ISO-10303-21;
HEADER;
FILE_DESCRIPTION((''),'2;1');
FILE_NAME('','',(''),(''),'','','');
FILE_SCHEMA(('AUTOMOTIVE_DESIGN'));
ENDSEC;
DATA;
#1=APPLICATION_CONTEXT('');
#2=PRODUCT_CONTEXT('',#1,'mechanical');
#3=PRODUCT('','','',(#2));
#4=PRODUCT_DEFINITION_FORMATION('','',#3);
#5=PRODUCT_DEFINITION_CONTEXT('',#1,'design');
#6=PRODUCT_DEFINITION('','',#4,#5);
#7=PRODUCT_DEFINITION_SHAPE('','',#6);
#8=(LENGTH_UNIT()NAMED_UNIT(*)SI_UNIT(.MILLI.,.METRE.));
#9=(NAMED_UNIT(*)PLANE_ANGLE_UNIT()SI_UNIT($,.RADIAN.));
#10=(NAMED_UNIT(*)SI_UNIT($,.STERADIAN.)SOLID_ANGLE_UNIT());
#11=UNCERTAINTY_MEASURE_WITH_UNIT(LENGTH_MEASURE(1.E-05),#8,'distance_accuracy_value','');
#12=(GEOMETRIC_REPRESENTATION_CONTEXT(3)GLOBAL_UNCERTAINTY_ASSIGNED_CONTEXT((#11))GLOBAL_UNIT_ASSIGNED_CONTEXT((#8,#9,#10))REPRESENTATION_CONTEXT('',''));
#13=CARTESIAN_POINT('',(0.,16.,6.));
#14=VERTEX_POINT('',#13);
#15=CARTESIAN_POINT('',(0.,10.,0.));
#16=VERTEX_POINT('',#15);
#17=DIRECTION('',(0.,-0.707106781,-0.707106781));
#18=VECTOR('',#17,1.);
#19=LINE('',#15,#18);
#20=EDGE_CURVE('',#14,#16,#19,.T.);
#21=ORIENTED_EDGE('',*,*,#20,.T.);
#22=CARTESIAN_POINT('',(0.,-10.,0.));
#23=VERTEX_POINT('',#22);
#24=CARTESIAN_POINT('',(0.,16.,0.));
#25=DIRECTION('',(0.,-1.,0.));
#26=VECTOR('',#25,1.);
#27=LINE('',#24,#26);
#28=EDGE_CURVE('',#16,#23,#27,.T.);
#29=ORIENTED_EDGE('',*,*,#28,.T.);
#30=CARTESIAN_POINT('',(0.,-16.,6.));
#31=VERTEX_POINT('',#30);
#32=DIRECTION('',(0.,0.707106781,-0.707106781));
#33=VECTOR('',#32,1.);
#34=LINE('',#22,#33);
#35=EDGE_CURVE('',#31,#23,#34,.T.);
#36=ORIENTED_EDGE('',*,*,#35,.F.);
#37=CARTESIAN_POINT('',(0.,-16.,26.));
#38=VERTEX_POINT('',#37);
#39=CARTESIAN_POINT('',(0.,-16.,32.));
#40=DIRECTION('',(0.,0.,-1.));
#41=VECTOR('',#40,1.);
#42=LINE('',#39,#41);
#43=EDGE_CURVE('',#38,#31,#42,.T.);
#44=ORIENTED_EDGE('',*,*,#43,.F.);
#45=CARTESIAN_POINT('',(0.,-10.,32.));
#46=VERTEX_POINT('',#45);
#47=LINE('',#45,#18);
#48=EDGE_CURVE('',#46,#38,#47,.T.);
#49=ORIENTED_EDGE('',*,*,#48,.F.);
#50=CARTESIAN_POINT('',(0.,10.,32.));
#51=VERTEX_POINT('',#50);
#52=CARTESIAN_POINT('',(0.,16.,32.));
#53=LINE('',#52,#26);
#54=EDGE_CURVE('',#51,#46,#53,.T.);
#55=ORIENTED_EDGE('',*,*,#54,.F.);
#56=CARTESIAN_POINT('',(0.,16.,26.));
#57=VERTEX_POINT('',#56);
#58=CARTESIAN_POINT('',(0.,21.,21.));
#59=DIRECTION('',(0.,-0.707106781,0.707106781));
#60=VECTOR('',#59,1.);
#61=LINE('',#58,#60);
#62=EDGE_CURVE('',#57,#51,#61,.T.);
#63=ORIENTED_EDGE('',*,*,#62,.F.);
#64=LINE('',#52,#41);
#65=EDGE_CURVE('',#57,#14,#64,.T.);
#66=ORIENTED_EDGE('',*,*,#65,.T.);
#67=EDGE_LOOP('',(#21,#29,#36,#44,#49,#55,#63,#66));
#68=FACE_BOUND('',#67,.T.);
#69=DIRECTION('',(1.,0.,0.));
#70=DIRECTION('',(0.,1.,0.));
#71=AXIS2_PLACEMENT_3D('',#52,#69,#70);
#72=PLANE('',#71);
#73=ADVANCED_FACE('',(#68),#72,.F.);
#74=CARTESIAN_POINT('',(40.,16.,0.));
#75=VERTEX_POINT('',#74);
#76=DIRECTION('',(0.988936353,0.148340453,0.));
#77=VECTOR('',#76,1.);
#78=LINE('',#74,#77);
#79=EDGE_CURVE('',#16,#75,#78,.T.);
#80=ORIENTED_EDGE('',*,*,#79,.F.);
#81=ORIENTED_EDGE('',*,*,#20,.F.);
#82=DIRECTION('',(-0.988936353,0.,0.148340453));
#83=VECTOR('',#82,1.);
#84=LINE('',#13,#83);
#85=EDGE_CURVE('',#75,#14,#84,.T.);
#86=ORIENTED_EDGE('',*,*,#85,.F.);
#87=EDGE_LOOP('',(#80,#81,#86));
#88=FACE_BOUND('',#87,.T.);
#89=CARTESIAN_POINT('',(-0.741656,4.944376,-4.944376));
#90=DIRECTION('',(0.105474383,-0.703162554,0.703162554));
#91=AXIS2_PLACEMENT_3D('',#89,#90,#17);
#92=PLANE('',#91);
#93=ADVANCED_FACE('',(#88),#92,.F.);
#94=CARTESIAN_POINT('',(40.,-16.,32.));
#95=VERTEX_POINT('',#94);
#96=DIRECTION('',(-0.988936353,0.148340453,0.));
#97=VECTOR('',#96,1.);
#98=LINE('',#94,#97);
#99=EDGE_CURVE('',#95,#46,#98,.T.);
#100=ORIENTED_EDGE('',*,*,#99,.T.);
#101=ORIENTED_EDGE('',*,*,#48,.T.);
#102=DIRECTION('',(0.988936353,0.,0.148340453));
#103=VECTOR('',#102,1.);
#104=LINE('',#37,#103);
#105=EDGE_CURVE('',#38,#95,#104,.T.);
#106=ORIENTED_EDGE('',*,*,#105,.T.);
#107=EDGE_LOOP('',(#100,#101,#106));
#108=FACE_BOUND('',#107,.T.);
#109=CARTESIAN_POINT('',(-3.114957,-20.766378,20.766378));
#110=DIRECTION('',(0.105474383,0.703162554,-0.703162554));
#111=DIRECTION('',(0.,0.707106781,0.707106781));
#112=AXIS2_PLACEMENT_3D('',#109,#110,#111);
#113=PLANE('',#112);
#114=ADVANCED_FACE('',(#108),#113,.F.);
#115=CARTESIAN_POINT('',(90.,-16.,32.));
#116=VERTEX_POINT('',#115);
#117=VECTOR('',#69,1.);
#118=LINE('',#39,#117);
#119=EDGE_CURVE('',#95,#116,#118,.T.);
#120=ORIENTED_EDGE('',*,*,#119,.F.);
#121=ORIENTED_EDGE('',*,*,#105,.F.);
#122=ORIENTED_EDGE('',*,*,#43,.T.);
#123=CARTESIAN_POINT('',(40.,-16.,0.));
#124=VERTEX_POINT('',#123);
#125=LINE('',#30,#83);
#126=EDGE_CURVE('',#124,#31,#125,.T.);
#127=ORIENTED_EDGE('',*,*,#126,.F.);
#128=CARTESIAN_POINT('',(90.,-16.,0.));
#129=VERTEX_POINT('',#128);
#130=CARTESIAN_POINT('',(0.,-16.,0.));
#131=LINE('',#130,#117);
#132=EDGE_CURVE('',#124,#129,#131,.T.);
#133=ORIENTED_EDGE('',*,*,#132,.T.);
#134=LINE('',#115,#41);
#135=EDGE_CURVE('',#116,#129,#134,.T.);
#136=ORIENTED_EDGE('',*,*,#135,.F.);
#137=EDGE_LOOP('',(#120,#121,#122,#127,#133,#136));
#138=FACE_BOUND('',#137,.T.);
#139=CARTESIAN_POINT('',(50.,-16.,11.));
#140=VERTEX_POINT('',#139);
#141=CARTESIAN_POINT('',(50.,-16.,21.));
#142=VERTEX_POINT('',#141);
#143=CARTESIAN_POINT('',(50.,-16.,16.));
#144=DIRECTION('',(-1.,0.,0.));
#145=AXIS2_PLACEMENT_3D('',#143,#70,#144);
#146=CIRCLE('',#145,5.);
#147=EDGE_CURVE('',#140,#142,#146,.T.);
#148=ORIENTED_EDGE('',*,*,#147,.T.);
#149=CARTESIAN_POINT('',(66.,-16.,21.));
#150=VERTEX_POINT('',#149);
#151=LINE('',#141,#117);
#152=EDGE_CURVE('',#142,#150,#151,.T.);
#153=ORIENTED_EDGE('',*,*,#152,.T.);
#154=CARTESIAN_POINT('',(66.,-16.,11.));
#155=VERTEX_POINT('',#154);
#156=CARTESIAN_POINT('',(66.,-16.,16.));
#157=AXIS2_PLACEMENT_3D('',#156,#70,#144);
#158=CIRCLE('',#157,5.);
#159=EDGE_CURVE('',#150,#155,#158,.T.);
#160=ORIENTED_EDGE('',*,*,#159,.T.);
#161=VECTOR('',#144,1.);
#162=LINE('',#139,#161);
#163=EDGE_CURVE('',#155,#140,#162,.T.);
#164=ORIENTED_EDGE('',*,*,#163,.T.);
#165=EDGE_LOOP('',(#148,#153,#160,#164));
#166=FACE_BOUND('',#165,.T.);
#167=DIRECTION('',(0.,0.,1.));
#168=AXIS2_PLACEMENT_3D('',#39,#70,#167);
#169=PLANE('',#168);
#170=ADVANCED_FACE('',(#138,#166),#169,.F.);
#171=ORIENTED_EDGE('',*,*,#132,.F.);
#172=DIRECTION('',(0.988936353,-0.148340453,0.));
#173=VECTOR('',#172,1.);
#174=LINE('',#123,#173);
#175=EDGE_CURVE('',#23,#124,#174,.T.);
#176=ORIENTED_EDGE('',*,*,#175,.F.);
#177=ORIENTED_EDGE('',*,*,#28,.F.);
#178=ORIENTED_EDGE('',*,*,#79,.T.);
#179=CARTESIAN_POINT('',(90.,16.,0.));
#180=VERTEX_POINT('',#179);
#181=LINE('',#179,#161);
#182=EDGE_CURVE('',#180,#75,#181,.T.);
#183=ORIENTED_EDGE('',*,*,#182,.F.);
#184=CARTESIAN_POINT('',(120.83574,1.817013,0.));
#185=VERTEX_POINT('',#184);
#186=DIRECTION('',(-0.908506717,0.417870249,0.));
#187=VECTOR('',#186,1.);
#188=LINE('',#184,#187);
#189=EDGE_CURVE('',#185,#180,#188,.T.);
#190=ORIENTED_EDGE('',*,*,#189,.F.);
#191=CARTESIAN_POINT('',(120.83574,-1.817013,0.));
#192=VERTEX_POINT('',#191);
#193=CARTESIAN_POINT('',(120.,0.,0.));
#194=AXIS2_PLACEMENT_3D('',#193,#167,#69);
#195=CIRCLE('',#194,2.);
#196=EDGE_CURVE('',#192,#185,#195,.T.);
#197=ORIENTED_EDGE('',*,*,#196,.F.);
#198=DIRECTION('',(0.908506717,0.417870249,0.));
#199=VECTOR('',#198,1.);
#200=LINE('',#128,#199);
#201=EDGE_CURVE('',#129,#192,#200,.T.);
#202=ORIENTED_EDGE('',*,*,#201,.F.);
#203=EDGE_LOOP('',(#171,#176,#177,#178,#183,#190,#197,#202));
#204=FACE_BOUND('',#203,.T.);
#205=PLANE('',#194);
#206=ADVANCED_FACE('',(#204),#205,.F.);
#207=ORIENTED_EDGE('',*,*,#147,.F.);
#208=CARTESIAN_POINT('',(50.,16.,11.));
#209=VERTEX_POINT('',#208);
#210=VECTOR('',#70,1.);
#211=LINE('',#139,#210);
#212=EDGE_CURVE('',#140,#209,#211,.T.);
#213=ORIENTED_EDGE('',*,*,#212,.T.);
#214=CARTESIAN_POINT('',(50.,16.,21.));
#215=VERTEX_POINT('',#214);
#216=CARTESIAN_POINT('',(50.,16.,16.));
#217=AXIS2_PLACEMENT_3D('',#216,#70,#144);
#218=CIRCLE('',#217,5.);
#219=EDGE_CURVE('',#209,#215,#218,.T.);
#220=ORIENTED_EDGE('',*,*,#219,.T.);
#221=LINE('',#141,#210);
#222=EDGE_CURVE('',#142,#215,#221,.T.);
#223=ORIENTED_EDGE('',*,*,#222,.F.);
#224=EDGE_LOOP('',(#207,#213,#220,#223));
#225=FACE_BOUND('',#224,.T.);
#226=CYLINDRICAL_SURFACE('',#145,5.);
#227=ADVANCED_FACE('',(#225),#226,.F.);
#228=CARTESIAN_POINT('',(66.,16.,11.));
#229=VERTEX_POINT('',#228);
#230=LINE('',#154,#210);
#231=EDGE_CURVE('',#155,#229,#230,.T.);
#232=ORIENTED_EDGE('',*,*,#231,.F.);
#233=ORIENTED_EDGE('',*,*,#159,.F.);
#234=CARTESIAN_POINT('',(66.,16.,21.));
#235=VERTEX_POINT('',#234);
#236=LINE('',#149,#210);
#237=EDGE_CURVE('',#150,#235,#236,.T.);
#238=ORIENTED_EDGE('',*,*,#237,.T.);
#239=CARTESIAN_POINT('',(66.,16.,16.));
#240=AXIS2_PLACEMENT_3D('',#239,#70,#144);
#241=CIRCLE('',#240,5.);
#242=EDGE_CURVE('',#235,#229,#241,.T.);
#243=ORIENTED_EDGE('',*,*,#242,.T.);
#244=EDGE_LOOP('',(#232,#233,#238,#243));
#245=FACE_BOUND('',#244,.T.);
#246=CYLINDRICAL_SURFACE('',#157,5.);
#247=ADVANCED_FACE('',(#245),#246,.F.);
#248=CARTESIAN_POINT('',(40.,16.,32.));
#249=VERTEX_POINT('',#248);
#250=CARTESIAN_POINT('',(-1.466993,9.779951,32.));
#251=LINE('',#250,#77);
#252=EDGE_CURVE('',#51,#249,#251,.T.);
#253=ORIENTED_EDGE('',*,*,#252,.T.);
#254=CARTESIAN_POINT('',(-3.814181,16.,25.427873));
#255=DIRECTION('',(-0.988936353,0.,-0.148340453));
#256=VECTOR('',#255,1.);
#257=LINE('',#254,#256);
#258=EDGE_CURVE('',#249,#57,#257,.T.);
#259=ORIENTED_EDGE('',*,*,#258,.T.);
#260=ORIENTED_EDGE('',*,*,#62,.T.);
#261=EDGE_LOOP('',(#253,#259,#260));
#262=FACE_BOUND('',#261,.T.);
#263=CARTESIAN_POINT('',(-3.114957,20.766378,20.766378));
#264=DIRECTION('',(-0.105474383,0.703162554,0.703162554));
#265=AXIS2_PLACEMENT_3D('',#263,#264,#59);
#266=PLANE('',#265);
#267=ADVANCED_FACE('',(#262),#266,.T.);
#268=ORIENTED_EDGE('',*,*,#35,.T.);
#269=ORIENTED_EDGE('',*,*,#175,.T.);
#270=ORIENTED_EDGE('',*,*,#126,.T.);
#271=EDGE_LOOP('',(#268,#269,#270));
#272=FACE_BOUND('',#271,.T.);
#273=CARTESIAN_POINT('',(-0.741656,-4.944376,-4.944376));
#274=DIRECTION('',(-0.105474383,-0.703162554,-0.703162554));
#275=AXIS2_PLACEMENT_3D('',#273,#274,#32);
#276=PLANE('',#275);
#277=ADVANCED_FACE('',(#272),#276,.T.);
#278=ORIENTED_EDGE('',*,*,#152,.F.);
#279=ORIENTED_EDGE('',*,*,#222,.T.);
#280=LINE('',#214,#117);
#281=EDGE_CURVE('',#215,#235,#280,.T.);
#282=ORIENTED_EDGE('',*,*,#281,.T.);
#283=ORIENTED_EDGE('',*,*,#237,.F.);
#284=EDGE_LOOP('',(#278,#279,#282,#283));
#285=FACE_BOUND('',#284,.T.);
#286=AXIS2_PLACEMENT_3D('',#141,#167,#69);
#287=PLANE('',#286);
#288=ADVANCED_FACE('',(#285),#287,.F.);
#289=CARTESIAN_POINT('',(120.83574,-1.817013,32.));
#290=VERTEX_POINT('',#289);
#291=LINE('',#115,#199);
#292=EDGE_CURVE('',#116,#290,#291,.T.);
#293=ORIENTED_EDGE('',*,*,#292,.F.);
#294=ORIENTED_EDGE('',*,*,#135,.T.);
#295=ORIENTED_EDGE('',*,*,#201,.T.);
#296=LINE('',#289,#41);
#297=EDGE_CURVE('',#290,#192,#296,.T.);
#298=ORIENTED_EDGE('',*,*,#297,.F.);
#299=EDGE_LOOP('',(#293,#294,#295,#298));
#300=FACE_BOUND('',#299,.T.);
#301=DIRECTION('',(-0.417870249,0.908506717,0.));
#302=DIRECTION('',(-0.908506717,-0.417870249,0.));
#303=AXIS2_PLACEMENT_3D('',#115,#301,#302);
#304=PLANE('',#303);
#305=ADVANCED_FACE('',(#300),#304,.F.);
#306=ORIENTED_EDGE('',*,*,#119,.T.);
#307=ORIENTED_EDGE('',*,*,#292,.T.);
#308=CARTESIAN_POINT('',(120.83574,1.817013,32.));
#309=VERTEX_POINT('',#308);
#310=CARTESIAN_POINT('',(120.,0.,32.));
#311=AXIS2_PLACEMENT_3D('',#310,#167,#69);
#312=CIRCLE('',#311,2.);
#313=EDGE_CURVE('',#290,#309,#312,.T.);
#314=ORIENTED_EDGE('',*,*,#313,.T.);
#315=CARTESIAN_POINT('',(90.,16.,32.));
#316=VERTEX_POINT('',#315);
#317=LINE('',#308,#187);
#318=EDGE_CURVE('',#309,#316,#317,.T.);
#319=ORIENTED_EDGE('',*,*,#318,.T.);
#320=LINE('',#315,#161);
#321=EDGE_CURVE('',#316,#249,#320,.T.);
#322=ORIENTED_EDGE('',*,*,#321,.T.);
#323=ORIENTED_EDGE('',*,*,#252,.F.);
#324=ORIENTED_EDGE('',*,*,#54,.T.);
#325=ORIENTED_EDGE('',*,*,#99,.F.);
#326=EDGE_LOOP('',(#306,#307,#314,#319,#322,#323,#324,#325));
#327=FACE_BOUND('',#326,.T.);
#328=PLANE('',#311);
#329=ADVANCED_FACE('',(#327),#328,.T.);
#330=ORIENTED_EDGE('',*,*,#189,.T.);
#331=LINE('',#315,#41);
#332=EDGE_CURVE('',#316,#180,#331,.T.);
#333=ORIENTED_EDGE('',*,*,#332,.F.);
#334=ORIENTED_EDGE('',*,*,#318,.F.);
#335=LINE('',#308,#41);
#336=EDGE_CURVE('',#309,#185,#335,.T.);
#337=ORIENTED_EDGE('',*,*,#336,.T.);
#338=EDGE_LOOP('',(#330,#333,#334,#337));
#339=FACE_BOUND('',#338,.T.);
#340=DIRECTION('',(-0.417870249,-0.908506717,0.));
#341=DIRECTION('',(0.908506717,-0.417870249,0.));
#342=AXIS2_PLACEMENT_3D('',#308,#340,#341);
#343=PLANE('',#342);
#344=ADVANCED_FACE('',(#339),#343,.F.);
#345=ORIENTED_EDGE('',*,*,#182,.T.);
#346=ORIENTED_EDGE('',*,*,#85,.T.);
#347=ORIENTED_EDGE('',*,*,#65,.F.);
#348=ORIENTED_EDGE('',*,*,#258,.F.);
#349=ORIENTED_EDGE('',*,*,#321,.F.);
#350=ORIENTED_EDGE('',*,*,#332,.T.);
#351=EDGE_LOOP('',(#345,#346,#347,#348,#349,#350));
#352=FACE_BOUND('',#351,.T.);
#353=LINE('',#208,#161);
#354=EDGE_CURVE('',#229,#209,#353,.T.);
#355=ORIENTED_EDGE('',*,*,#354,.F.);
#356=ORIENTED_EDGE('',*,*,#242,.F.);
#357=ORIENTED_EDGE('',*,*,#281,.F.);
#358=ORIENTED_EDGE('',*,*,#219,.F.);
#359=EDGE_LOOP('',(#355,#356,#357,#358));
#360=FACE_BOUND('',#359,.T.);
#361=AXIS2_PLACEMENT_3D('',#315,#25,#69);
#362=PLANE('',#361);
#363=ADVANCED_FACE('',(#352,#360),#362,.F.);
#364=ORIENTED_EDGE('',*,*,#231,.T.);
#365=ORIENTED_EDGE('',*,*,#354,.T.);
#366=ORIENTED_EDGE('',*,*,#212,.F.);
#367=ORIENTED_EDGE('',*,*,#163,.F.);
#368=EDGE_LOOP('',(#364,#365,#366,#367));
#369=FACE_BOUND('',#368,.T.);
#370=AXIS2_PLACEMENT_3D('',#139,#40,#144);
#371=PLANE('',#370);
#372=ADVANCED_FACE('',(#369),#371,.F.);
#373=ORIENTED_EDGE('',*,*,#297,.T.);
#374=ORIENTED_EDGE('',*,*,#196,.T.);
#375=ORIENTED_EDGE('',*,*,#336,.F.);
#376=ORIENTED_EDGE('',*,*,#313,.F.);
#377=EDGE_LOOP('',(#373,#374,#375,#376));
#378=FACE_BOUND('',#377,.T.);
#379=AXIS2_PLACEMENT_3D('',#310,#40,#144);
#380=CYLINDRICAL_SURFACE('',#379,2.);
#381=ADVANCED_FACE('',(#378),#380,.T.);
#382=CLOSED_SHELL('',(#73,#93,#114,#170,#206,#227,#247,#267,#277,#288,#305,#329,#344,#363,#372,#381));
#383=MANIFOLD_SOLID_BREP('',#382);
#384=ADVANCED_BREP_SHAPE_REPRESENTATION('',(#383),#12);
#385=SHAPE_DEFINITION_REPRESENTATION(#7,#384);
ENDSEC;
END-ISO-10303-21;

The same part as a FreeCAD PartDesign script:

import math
import FreeCAD as App
import Part
import Sketcher

V = App.Vector

doc = App.newDocument("Part")
body = doc.addObject("PartDesign::Body", "Body")

sketch1 = body.newObject("Sketcher::SketchObject", "Sketch")
sketch1.AttachmentSupport = (doc.getObject("XY_Plane"), [""])
sketch1.MapMode = "FlatFace"
sketch1.addGeometry([
    Part.LineSegment(V(0, 16, 0), V(0, -16, 0)),
    Part.LineSegment(V(0, -16, 0), V(90, -16, 0)),
    Part.LineSegment(V(90, -16, 0), V(120.8, -1.8, 0)),
    Part.ArcOfCircle(Part.Circle(V(120, 0, 0), V(0, 0, 1), 2), math.radians(-65), math.radians(65)),
    Part.LineSegment(V(120.8, 1.8, 0), V(90, 16, 0)),
    Part.LineSegment(V(90, 16, 0), V(0, 16, 0)),
], False)
sketch1.addConstraint([
    Sketcher.Constraint("Coincident", 0, 2, 1, 1),
    Sketcher.Constraint("Coincident", 1, 2, 2, 1),
    Sketcher.Constraint("Tangent", 2, 2, 3, 1),
    Sketcher.Constraint("Tangent", 3, 2, 4, 1),
    Sketcher.Constraint("Coincident", 4, 2, 5, 1),
    Sketcher.Constraint("Coincident", 5, 2, 0, 1),
    Sketcher.Constraint("Vertical", 0),
    Sketcher.Constraint("Horizontal", 1),
    Sketcher.Constraint("Horizontal", 5),
    Sketcher.Constraint("Symmetric", 0, 2, 5, 2, -1, 1),
    Sketcher.Constraint("Symmetric", 2, 2, 3, 2, -1),
    Sketcher.Constraint("Radius", 3, 2.0),
    Sketcher.Constraint("DistanceX", 1, 1, 1, 2, 90.0),
    Sketcher.Constraint("DistanceY", 0, 2, 0, 1, 32.0),
    Sketcher.Constraint("DistanceX", -1, 1, 3, 3, 120.0),
])
pad1 = body.newObject("PartDesign::Pad", "Pad")
pad1.Profile = sketch1
pad1.Length = 32

sketch2 = body.newObject("Sketcher::SketchObject", "Sketch001")
sketch2.AttachmentSupport = (doc.getObject("XZ_Plane"), [""])
sketch2.MapMode = "FlatFace"
sketch2.AttachmentOffset = App.Placement(V(0, 0, -16), App.Rotation())
sketch2.addGeometry([
    Part.LineSegment(V(66, 11, 0), V(50, 11, 0)),
    Part.ArcOfCircle(Part.Circle(V(50, 16, 0), V(0, 0, 1), 5), math.radians(90), math.radians(270)),
    Part.LineSegment(V(50, 21, 0), V(66, 21, 0)),
    Part.ArcOfCircle(Part.Circle(V(66, 16, 0), V(0, 0, 1), 5), math.radians(-90), math.radians(90)),
], False)
sketch2.addConstraint([
    Sketcher.Constraint("Tangent", 0, 2, 1, 2),
    Sketcher.Constraint("Tangent", 1, 1, 2, 1),
    Sketcher.Constraint("Tangent", 2, 2, 3, 2),
    Sketcher.Constraint("Tangent", 3, 1, 0, 1),
    Sketcher.Constraint("Horizontal", 0),
    Sketcher.Constraint("Horizontal", 2),
    Sketcher.Constraint("Radius", 1, 5.0),
    Sketcher.Constraint("DistanceX", 0, 2, 0, 1, 16.0),
    Sketcher.Constraint("DistanceX", -1, 1, 1, 3, 50.0),
    Sketcher.Constraint("DistanceY", -1, 1, 1, 3, 16.0),
])
pocket1 = body.newObject("PartDesign::Pocket", "Pocket")
pocket1.Profile = sketch2
pocket1.Length = 32
pocket1.Reversed = True

sketch3 = body.newObject("Sketcher::SketchObject", "Sketch002")
sketch3.Placement = App.Placement(V(-3.114957, 20.766378, 20.766378), App.Rotation(V(0.99442202, 0.074581652, 0.074581652), V(0, 0.707106781, -0.707106781), V(-0.105474383, 0.703162554, 0.703162554), "ZXY"))
sketch3.addGeometry([
    Part.LineSegment(V(3, -7, 0), V(3, -16, 0)),
    Part.LineSegment(V(3, -16, 0), V(43, -11, 0)),
    Part.LineSegment(V(43, -11, 0), V(3, -7, 0)),
], False)
sketch3.addConstraint([
    Sketcher.Constraint("Coincident", 0, 2, 1, 1),
    Sketcher.Constraint("Coincident", 1, 2, 2, 1),
    Sketcher.Constraint("Coincident", 2, 2, 0, 1),
    Sketcher.Constraint("Vertical", 0),
    Sketcher.Constraint("Equal", 1, 2),
    Sketcher.Constraint("DistanceY", 0, 2, 0, 1, 8.485281),
    Sketcher.Constraint("DistanceX", -1, 1, 1, 2, 43.3568),
    Sketcher.Constraint("DistanceX", -1, 1, 0, 2, 3.132429),
    Sketcher.Constraint("DistanceY", 0, 2, -1, 1, 15.556349),
])
pocket2 = body.newObject("PartDesign::Pocket", "Pocket001")
pocket2.Profile = sketch3
pocket2.Length = 32
pocket2.Reversed = True

sketch4 = body.newObject("Sketcher::SketchObject", "Sketch003")
sketch4.Placement = App.Placement(V(-3.114957, -20.766378, 20.766378), App.Rotation(V(0.99442202, -0.074581652, 0.074581652), V(0, 0.707106781, 0.707106781), V(-0.105474383, -0.703162554, 0.703162554), "ZXY"))
sketch4.addGeometry([
    Part.LineSegment(V(43, 11, 0), V(3, 16, 0)),
    Part.LineSegment(V(3, 16, 0), V(3, 7, 0)),
    Part.LineSegment(V(3, 7, 0), V(43, 11, 0)),
], False)
sketch4.addConstraint([
    Sketcher.Constraint("Coincident", 0, 2, 1, 1),
    Sketcher.Constraint("Coincident", 1, 2, 2, 1),
    Sketcher.Constraint("Coincident", 2, 2, 0, 1),
    Sketcher.Constraint("Vertical", 1),
    Sketcher.Constraint("Equal", 0, 2),
    Sketcher.Constraint("DistanceY", 1, 2, 1, 1, 8.485281),
    Sketcher.Constraint("DistanceX", -1, 1, 2, 2, 43.3568),
    Sketcher.Constraint("DistanceX", -1, 1, 0, 2, 3.132429),
    Sketcher.Constraint("DistanceY", -1, 1, 0, 2, 15.556349),
])
pocket3 = body.newObject("PartDesign::Pocket", "Pocket002")
pocket3.Profile = sketch4
pocket3.Length = 32
pocket3.Reversed = True

sketch5 = body.newObject("Sketcher::SketchObject", "Sketch004")
sketch5.Placement = App.Placement(V(-0.741656, -4.944376, -4.944376), App.Rotation(V(-0.99442202, 0.074581652, 0.074581652), V(0, 0.707106781, -0.707106781), V(-0.105474383, -0.703162554, -0.703162554), "ZXY"))
sketch5.addGeometry([
    Part.LineSegment(V(-1, -7, 0), V(-41, -11, 0)),
    Part.LineSegment(V(-41, -11, 0), V(-1, -16, 0)),
    Part.LineSegment(V(-1, -16, 0), V(-1, -7, 0)),
], False)
sketch5.addConstraint([
    Sketcher.Constraint("Coincident", 0, 2, 1, 1),
    Sketcher.Constraint("Coincident", 1, 2, 2, 1),
    Sketcher.Constraint("Coincident", 2, 2, 0, 1),
    Sketcher.Constraint("Vertical", 2),
    Sketcher.Constraint("Equal", 0, 1),
    Sketcher.Constraint("DistanceY", 2, 1, 2, 2, 8.485281),
    Sketcher.Constraint("DistanceY", 0, 2, -1, 1, 11.313708),
    Sketcher.Constraint("DistanceX", 0, 2, 1, 2, 40.224371),
    Sketcher.Constraint("DistanceX", 0, 2, -1, 1, 40.970187),
])
pocket4 = body.newObject("PartDesign::Pocket", "Pocket003")
pocket4.Profile = sketch5
pocket4.Length = 32
pocket4.Reversed = True

sketch6 = body.newObject("Sketcher::SketchObject", "Sketch005")
sketch6.Placement = App.Placement(V(-0.741656, 4.944376, -4.944376), App.Rotation(V(0.99442202, 0.074581652, -0.074581652), V(0, 0.707106781, 0.707106781), V(0.105474383, -0.703162554, 0.703162554), "ZXY"))
sketch6.addGeometry([
    Part.LineSegment(V(1, 7, 0), V(41, 11, 0)),
    Part.LineSegment(V(41, 11, 0), V(1, 16, 0)),
    Part.LineSegment(V(1, 16, 0), V(1, 7, 0)),
], False)
sketch6.addConstraint([
    Sketcher.Constraint("Coincident", 0, 2, 1, 1),
    Sketcher.Constraint("Coincident", 1, 2, 2, 1),
    Sketcher.Constraint("Coincident", 2, 2, 0, 1),
    Sketcher.Constraint("Vertical", 2),
    Sketcher.Constraint("Equal", 0, 1),
    Sketcher.Constraint("DistanceY", 2, 2, 2, 1, 8.485281),
    Sketcher.Constraint("DistanceY", -1, 1, 0, 2, 11.313708),
    Sketcher.Constraint("DistanceX", 1, 2, 0, 2, 40.224371),
    Sketcher.Constraint("DistanceX", -1, 1, 0, 2, 40.970187),
])
pocket5 = body.newObject("PartDesign::Pocket", "Pocket004")
pocket5.Profile = sketch6
pocket5.Length = 32

doc.recompute()
